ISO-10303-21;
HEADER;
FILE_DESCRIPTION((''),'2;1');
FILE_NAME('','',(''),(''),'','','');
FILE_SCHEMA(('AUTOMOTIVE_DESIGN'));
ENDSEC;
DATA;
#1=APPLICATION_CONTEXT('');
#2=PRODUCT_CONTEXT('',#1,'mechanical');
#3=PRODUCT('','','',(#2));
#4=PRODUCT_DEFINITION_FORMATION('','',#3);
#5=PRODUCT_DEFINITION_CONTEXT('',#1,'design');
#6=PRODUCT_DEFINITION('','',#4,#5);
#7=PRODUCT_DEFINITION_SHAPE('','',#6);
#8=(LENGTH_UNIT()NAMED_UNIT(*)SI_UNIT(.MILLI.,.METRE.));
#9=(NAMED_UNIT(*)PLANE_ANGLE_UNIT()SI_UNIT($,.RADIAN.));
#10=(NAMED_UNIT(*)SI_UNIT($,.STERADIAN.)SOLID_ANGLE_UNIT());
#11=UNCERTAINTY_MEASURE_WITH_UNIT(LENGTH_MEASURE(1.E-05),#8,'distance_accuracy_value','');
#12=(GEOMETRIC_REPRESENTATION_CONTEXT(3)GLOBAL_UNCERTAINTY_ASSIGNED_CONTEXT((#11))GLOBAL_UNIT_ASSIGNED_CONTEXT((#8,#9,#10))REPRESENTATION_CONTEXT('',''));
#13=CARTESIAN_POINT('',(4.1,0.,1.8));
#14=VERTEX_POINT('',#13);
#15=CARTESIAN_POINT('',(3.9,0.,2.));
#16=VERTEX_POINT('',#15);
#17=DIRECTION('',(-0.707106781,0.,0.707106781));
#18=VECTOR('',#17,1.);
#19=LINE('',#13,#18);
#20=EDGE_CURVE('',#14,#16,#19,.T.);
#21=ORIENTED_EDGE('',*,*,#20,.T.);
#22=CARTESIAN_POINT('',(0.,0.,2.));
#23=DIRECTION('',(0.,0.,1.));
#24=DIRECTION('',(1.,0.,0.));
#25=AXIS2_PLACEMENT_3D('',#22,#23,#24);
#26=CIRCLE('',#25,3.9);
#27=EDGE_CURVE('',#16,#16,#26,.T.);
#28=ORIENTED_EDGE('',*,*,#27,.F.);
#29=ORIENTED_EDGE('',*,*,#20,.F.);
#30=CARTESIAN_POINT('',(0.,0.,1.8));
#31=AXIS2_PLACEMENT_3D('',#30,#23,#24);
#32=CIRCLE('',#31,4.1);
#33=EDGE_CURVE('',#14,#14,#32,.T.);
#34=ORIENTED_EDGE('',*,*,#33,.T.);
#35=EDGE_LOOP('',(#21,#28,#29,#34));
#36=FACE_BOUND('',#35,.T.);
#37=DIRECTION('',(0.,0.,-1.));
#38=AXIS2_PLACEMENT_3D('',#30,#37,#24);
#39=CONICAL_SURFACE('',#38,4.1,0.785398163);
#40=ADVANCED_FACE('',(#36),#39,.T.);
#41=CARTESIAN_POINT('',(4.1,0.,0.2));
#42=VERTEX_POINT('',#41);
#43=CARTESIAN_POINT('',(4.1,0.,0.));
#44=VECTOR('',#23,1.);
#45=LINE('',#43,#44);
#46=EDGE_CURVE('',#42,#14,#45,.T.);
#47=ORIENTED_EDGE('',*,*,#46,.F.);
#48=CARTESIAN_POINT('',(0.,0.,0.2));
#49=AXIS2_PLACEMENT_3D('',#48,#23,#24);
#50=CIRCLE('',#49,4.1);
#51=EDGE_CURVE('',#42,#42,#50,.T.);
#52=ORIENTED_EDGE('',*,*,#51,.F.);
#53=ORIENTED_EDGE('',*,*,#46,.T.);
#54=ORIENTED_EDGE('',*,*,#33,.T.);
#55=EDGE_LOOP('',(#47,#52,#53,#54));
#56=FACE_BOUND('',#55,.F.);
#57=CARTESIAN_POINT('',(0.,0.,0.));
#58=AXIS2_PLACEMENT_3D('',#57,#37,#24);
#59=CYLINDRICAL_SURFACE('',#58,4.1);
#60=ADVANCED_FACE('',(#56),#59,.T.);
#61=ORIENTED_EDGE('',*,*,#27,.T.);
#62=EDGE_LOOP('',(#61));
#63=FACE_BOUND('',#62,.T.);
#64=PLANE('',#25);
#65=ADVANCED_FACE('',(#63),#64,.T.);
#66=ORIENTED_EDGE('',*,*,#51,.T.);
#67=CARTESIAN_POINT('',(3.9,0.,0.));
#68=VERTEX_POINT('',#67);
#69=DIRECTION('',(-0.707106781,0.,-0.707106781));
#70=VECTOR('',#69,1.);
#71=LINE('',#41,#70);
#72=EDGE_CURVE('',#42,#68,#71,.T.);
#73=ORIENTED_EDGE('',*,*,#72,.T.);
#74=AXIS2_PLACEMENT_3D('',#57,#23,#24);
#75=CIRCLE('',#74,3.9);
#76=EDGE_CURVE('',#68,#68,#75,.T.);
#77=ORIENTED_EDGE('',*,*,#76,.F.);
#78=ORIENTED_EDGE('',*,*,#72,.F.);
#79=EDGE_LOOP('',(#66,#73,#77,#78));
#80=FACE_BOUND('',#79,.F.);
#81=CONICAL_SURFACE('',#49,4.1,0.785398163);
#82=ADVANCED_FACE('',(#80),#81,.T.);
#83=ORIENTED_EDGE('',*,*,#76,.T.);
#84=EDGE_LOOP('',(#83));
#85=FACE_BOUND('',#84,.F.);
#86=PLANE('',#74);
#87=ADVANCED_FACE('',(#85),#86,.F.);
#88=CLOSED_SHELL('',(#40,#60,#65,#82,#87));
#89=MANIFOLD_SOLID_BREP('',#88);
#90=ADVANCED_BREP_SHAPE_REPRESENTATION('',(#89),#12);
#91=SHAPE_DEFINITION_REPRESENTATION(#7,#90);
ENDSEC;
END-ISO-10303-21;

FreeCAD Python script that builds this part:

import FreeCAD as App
import Part
import Sketcher

V = App.Vector
Q = App.Units.Quantity


def edges_at(feature, points):
    """Names of the edges that pass closest to the given points."""
    edges = feature.Shape.Edges
    near = lambda p: min(range(len(edges)), key=lambda i: edges[i].distToShape(Part.Vertex(*p))[0])
    return sorted({f"Edge{near(p) + 1}" for p in points})

doc = App.newDocument("Part")
body = doc.addObject("PartDesign::Body", "Body")

# Sketch on XY plane
sketch1 = doc.addObject("Sketcher::SketchObject", "Sketch")
body.addObject(sketch1)
sketch1.AttachmentSupport = (doc.XY_Plane, [""])
sketch1.MapMode = "FlatFace"
sketch1.addGeometry(Part.Circle(V(0, 0, 0), V(0, 0, 1), 4.1), False)
sketch1.addConstraint(Sketcher.Constraint("Coincident", 0, 3, -1, 1))
sketch1.addConstraint(Sketcher.Constraint("Diameter", 0, Q("8.2 mm")))
pad1 = doc.addObject("PartDesign::Pad", "Pad")
body.addObject(pad1)
pad1.Profile = sketch1
pad1.Length = 2
doc.recompute()

chamfer = doc.addObject("PartDesign::Chamfer", "Chamfer")
body.addObject(chamfer)
chamfer.Base = (pad1, edges_at(pad1, [(-4.1, 0, 0), (-4.1, 0, 2)]))
chamfer.Size = 0.2

doc.recompute()
